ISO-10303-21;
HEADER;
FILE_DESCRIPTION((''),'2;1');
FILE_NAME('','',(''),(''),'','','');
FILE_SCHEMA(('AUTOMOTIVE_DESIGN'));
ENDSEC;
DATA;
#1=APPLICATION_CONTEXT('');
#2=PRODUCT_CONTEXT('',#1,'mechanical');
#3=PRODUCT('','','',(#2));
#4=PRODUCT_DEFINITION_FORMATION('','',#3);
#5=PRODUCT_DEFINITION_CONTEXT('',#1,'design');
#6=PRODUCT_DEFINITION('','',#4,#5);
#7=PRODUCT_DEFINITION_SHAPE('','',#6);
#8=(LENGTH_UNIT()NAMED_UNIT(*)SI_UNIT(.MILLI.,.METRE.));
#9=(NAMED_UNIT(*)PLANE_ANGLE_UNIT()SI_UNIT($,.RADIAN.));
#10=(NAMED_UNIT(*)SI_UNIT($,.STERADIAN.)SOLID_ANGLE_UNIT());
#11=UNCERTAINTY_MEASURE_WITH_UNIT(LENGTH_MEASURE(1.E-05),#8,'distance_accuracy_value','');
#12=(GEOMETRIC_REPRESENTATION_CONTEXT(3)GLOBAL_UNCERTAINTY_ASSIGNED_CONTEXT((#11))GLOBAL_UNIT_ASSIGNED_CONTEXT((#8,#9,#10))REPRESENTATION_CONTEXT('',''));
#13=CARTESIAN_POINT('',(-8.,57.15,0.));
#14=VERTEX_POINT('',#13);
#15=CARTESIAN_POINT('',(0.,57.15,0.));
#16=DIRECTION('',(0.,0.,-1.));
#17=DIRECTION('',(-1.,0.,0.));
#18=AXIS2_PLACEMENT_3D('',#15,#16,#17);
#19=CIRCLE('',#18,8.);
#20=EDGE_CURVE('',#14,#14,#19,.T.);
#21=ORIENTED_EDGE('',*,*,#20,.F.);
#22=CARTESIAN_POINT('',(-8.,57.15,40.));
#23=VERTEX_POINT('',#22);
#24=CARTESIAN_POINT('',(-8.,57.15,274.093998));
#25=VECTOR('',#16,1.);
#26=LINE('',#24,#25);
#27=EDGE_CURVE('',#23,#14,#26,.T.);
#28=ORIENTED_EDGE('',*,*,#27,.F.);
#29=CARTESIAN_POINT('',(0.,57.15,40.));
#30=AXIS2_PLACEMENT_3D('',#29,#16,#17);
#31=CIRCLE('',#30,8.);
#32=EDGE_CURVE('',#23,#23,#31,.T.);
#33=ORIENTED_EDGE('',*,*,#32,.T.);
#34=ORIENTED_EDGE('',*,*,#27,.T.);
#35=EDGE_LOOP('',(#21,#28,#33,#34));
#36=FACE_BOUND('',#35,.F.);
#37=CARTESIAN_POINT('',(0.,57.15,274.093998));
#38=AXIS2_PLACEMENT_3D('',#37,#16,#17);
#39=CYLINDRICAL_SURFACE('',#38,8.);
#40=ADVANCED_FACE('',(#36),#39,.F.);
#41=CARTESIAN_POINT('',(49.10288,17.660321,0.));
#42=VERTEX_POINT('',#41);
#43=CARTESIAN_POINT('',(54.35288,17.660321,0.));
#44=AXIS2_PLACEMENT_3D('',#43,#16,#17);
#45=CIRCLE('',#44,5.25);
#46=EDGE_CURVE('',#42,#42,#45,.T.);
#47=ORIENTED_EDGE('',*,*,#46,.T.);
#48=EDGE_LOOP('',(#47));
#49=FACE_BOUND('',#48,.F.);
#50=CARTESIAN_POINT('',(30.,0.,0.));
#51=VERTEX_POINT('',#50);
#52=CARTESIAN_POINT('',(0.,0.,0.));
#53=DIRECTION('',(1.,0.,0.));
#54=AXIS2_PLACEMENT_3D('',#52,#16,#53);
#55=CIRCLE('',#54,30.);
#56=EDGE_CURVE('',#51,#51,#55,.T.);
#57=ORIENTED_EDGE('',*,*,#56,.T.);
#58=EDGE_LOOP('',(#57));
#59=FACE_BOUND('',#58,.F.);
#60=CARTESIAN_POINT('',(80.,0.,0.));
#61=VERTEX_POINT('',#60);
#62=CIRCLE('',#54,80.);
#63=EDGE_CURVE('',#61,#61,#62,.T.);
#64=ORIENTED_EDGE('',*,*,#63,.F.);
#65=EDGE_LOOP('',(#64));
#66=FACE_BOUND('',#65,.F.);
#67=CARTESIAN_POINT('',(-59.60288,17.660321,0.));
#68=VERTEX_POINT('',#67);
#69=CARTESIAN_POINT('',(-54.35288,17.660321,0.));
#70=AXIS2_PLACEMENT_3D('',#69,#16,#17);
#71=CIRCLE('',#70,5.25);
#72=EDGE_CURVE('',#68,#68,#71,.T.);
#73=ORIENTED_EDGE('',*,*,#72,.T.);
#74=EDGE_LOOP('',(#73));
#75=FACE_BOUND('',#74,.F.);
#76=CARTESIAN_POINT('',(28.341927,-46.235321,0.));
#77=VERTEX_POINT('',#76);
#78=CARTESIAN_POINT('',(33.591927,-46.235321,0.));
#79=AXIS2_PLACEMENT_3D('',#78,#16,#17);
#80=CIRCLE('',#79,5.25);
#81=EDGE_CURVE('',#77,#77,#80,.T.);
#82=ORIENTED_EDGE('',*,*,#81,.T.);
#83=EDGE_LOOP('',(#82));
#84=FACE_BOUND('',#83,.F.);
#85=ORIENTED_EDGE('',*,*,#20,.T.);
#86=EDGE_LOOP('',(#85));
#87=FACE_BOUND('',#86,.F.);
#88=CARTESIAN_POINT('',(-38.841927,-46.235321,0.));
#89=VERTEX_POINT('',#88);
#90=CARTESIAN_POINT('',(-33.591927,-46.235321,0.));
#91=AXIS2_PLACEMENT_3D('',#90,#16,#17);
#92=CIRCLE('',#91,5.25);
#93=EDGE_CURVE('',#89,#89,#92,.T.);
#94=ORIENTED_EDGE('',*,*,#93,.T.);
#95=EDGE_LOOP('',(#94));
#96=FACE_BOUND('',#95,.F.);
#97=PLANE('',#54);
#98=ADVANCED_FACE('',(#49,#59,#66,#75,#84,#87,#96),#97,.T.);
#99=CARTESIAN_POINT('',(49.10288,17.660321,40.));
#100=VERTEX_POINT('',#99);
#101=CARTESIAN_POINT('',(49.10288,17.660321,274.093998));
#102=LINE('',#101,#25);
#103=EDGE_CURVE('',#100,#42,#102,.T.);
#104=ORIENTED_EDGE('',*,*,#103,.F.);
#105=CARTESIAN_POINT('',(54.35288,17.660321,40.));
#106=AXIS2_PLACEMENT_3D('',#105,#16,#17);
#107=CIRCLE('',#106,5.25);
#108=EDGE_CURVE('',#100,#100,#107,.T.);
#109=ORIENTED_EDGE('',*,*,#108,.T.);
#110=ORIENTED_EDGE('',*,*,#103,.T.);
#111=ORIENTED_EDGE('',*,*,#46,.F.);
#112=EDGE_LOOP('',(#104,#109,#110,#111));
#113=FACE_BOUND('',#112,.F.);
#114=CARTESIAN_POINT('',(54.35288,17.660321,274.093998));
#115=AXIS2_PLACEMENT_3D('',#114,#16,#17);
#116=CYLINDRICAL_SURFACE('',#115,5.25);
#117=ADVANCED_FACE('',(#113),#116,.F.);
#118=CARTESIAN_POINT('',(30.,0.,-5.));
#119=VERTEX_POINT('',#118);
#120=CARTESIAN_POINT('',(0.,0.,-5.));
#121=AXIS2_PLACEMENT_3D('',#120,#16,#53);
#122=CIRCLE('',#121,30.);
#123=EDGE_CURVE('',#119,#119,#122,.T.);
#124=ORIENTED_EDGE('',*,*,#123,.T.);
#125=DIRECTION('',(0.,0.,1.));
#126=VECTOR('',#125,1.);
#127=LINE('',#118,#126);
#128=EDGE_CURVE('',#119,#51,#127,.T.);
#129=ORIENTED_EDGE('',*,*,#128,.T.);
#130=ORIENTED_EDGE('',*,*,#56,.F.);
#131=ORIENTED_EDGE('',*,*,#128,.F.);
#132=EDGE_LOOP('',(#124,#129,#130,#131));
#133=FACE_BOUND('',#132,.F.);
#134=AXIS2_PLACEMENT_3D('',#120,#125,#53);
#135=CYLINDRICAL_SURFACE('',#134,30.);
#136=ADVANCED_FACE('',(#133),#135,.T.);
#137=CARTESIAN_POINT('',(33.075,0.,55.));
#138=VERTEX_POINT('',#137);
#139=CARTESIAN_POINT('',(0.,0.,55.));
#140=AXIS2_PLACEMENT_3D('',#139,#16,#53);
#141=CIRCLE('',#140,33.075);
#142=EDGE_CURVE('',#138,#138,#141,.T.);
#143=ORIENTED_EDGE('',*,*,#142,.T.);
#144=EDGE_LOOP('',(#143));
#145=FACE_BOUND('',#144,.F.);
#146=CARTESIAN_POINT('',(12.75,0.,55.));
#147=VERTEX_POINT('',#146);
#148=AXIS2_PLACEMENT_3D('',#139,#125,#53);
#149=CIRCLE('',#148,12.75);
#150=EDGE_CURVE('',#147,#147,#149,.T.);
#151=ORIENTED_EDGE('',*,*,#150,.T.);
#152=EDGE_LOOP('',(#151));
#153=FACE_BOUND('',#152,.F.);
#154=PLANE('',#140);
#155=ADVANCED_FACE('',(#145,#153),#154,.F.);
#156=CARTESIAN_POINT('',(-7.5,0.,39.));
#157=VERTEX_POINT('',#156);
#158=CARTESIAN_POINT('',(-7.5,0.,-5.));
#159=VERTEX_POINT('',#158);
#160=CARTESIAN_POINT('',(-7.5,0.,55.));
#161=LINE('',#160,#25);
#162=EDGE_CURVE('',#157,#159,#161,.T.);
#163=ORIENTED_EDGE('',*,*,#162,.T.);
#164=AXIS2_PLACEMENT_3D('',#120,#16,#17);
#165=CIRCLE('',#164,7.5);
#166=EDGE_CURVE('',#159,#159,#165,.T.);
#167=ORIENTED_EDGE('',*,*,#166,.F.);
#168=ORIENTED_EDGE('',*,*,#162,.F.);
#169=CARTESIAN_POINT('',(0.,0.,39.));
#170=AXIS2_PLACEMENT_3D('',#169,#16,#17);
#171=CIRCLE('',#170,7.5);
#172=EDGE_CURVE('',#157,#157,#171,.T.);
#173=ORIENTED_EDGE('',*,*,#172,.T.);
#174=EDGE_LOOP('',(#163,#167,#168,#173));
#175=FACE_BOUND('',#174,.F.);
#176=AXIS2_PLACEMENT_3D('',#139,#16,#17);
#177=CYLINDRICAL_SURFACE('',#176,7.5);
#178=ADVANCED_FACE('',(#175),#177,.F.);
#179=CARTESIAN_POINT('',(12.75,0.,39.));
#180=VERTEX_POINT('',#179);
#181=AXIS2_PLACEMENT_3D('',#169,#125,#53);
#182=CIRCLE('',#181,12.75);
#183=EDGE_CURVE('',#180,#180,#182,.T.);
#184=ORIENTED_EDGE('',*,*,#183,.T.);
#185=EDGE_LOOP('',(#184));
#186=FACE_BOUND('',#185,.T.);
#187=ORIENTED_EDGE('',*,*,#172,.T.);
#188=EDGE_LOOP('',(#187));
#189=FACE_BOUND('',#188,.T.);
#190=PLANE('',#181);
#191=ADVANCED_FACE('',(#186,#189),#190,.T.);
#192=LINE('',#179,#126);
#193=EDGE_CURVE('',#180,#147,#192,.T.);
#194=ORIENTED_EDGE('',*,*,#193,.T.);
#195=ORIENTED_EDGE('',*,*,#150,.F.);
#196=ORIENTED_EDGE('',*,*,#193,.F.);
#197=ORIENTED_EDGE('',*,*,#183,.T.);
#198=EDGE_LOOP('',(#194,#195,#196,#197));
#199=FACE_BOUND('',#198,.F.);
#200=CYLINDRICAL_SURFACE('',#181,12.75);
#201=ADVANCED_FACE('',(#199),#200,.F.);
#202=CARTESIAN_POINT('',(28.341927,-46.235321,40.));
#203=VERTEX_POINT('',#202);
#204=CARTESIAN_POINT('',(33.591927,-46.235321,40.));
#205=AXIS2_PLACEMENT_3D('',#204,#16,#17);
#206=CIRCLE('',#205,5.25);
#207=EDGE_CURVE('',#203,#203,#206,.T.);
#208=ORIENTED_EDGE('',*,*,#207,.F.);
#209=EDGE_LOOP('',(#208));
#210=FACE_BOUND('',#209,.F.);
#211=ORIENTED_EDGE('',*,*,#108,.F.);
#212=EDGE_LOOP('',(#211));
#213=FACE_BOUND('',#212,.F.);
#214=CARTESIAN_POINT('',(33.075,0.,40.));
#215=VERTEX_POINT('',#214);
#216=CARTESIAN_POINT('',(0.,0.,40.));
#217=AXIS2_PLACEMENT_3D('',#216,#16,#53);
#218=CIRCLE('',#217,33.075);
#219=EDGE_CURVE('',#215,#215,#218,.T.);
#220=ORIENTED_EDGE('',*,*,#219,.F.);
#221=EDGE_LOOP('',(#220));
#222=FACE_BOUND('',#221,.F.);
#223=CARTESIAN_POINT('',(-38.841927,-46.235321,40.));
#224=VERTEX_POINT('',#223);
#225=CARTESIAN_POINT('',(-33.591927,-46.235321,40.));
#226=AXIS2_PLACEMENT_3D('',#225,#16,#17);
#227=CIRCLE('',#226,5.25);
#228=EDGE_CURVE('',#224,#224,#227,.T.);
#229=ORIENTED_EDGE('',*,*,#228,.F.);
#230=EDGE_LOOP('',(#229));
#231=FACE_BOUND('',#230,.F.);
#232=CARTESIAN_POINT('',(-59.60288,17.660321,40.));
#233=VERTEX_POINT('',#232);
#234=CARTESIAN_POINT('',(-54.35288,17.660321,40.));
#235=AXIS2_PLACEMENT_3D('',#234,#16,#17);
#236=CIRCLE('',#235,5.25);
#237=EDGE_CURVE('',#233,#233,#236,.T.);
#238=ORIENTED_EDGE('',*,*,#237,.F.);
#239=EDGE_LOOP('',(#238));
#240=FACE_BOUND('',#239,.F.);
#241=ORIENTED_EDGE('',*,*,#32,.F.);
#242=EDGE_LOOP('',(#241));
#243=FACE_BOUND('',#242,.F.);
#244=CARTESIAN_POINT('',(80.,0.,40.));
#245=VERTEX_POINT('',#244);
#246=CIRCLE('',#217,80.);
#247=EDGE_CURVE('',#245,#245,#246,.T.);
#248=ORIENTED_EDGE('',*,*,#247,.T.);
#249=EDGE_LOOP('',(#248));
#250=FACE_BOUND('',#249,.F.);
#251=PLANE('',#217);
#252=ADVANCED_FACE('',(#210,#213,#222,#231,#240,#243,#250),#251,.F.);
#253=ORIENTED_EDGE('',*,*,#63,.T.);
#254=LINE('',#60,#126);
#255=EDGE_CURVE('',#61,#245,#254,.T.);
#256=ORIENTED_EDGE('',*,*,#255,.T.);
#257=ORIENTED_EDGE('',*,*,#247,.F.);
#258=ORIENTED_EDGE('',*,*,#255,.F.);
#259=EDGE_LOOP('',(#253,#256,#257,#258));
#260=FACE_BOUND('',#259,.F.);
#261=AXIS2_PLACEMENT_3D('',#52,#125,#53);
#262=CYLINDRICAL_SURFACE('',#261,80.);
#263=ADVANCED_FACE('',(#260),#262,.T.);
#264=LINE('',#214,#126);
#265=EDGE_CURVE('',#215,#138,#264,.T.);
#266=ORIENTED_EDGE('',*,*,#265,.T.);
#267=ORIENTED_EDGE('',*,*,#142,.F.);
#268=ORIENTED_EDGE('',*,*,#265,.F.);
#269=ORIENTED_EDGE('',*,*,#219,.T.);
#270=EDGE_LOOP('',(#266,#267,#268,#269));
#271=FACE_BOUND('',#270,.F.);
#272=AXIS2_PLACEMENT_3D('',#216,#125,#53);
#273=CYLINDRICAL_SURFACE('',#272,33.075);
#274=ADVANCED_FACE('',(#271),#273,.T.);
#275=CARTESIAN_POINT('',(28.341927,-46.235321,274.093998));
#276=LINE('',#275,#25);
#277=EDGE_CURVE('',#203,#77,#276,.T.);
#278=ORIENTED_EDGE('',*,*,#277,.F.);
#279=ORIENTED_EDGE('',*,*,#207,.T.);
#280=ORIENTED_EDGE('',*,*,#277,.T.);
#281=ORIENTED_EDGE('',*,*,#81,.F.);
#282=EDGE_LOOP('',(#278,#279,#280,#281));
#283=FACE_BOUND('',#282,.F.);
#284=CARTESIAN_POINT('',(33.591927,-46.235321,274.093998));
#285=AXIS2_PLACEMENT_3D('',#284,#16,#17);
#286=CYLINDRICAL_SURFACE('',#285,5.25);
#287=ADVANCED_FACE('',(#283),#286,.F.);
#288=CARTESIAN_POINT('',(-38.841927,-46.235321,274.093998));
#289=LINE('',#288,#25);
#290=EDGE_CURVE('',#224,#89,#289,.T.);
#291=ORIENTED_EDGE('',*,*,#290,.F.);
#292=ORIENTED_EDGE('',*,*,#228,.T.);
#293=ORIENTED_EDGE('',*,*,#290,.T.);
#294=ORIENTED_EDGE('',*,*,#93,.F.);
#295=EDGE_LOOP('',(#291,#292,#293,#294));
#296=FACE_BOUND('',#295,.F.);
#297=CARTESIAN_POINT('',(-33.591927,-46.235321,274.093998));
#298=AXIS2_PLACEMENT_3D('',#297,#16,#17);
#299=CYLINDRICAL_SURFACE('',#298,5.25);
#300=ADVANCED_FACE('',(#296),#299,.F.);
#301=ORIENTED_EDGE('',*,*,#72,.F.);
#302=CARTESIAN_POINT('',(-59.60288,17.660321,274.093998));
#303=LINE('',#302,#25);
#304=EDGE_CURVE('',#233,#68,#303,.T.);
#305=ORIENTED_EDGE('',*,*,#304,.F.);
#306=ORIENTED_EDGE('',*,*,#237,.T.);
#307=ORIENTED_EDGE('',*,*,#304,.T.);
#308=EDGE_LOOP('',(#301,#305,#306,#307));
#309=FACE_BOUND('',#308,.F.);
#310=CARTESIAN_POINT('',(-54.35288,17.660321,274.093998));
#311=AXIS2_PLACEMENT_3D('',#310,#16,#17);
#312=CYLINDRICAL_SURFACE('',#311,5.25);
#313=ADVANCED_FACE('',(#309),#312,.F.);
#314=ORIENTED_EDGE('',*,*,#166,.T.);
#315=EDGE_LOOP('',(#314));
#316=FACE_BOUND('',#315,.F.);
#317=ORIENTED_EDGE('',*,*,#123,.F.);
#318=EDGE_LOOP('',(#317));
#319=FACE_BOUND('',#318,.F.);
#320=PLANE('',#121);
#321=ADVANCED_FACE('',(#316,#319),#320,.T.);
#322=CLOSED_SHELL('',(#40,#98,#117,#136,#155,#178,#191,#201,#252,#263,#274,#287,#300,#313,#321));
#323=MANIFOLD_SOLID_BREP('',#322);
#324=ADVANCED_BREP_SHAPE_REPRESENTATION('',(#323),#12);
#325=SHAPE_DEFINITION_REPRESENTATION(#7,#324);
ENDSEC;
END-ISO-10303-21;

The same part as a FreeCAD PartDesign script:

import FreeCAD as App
import Part
import Sketcher
Q = App.Units.Quantity

doc = App.newDocument("Part")
params = doc.addObject("Spreadsheet::Sheet", "Params")
for row, (alias, value) in enumerate([
    ("sketch1_width", "50 mm"),
    ("sketch1_width2", "30 mm"),
    ("sketch1_height", "5 mm"),
    ("sketch1_height2", "40 mm"),
    ("sketch1_height3", "15 mm"),
    ("revolution_angle", "360 deg"),
    ("sketch2_diameter", "15 mm"),
    ("hole_diameter", "15 mm"),
    ("hole_cbore_diameter", "25.5 mm"),
    ("hole_cbore_depth", "16 mm"),
    ("sketch3_diameter", "10.5 mm"),
    ("hole2_diameter", "10.5 mm"),
    ("sketch4_diameter", "16 mm"),
    ("hole3_diameter", "16 mm"),
], start=1):
    params.set(f"A{row}", alias)
    params.set(f"B{row}", "=" + value)
    params.setAlias(f"B{row}", alias)

body = doc.addObject("PartDesign::Body", "Body")

sketch1 = doc.addObject("Sketcher::SketchObject", "Sketch")
body.addObject(sketch1)
sketch1.AttachmentSupport = (doc.XZ_Plane, [""])
sketch1.MapMode = "FlatFace"
sketch1.addGeometry([
    Part.LineSegment(App.Vector(30, -5, 0), App.Vector(30, 0, 0)),
    Part.LineSegment(App.Vector(30, 0, 0), App.Vector(80, 0, 0)),
    Part.LineSegment(App.Vector(80, 0, 0), App.Vector(80, 40, 0)),
    Part.LineSegment(App.Vector(80, 40, 0), App.Vector(33, 40, 0)),
    Part.LineSegment(App.Vector(33, 40, 0), App.Vector(33, 55, 0)),
    Part.LineSegment(App.Vector(33, 55, 0), App.Vector(0, 55, 0)),
    Part.LineSegment(App.Vector(0, 55, 0), App.Vector(0, -5, 0)),
    Part.LineSegment(App.Vector(0, -5, 0), App.Vector(30, -5, 0)),
], False)
sketch1.addConstraint([
    Sketcher.Constraint("Coincident", 0, 2, 1, 1),
    Sketcher.Constraint("Coincident", 1, 2, 2, 1),
    Sketcher.Constraint("Coincident", 2, 2, 3, 1),
    Sketcher.Constraint("Coincident", 3, 2, 4, 1),
    Sketcher.Constraint("Coincident", 4, 2, 5, 1),
    Sketcher.Constraint("Coincident", 5, 2, 6, 1),
    Sketcher.Constraint("Coincident", 6, 2, 7, 1),
    Sketcher.Constraint("Coincident", 7, 2, 0, 1),
    Sketcher.Constraint("Vertical", 0),
    Sketcher.Constraint("Horizontal", 1),
    Sketcher.Constraint("Vertical", 2),
    Sketcher.Constraint("Horizontal", 3),
    Sketcher.Constraint("Vertical", 4),
    Sketcher.Constraint("Horizontal", 5),
    Sketcher.Constraint("Vertical", 6),
    Sketcher.Constraint("Horizontal", 7),
    Sketcher.Constraint("PointOnObject", 0, 2, -1),
    Sketcher.Constraint("PointOnObject", 5, 2, -2),
    Sketcher.Constraint("DistanceX", 1, 1, 1, 2, Q("50 mm")),
    Sketcher.Constraint("DistanceX", 7, 1, 7, 2, Q("30 mm")),
    Sketcher.Constraint("DistanceY", 0, 1, 0, 2, Q("5 mm")),
    Sketcher.Constraint("DistanceY", 2, 1, 2, 2, Q("40 mm")),
    Sketcher.Constraint("DistanceY", 4, 1, 4, 2, Q("15 mm")),
    Sketcher.Constraint("DistanceX", 3, 2, 3, 1, Q("46.925 mm")),
])
sketch1.setExpression("Constraints[18]", "Params.sketch1_width")
sketch1.setExpression("Constraints[19]", "Params.sketch1_width2")
sketch1.setExpression("Constraints[20]", "Params.sketch1_height")
sketch1.setExpression("Constraints[21]", "Params.sketch1_height2")
sketch1.setExpression("Constraints[22]", "Params.sketch1_height3")
revolution = doc.addObject("PartDesign::Revolution", "Revolution")
body.addObject(revolution)
revolution.Profile = sketch1
revolution.ReferenceAxis = (sketch1, ["V_Axis"])
revolution.setExpression("Angle", "Params.revolution_angle")

sketch2 = doc.addObject("Sketcher::SketchObject", "Sketch001")
body.addObject(sketch2)
sketch2.AttachmentSupport = (doc.XY_Plane, [""])
sketch2.MapMode = "FlatFace"
sketch2.AttachmentOffset = App.Placement(App.Vector(0, 0, 55), App.Rotation())
sketch2.addGeometry(Part.Circle(App.Vector(0, 0, 0), App.Vector(0, 0, 1), 8), False)
sketch2.addConstraint([
    Sketcher.Constraint("Coincident", 0, 3, -1, 1),
    Sketcher.Constraint("Diameter", 0, Q("15 mm")),
])
sketch2.setExpression("Constraints[1]", "Params.sketch2_diameter")
doc.recompute()
hole = doc.addObject("PartDesign::Hole", "Hole")
body.addObject(hole)
hole.Profile = sketch2
hole.ThreadType = "None"
hole.setExpression("Diameter", "Params.hole_diameter")
hole.DepthType = "ThroughAll"
hole.HoleCutType = "Counterbore"
hole.setExpression("HoleCutDiameter", "Params.hole_cbore_diameter")
hole.setExpression("HoleCutDepth", "Params.hole_cbore_depth")

sketch3 = doc.addObject("Sketcher::SketchObject", "Sketch002")
body.addObject(sketch3)
sketch3.AttachmentSupport = (doc.XY_Plane, [""])
sketch3.MapMode = "FlatFace"
sketch3.AttachmentOffset = App.Placement(App.Vector(0, 0, 40), App.Rotation())
sketch3.addGeometry([
    Part.Circle(App.Vector(-54, 18, 0), App.Vector(0, 0, 1), 5),
    Part.Circle(App.Vector(-34, -46, 0), App.Vector(0, 0, 1), 5),
    Part.Circle(App.Vector(34, -46, 0), App.Vector(0, 0, 1), 5),
    Part.Circle(App.Vector(54, 18, 0), App.Vector(0, 0, 1), 5),
], False)
sketch3.addConstraint([
    Sketcher.Constraint("Equal", 0, 1),
    Sketcher.Constraint("Equal", 1, 2),
    Sketcher.Constraint("Equal", 2, 3),
    Sketcher.Constraint("Symmetric", 1, 3, 2, 3, -2),
    Sketcher.Constraint("Symmetric", 0, 3, 3, 3, -2),
    Sketcher.Constraint("Diameter", 0, Q("10.5 mm")),
    Sketcher.Constraint("DistanceX", 0, 3, -1, 1, Q("54.35288 mm")),
    Sketcher.Constraint("DistanceY", -1, 1, 0, 3, Q("17.660321 mm")),
    Sketcher.Constraint("DistanceY", 1, 3, -1, 1, Q("46.235321 mm")),
    Sketcher.Constraint("DistanceX", 1, 3, -1, 1, Q("33.591927 mm")),
])
sketch3.setExpression("Constraints[5]", "Params.sketch3_diameter")
doc.recompute()
hole2 = doc.addObject("PartDesign::Hole", "Hole001")
body.addObject(hole2)
hole2.Profile = sketch3
hole2.ThreadType = "None"
hole2.setExpression("Diameter", "Params.hole2_diameter")
hole2.DepthType = "ThroughAll"

sketch4 = doc.addObject("Sketcher::SketchObject", "Sketch003")
body.addObject(sketch4)
sketch4.AttachmentSupport = (doc.XY_Plane, [""])
sketch4.MapMode = "FlatFace"
sketch4.AttachmentOffset = App.Placement(App.Vector(0, 0, 40), App.Rotation())
sketch4.addGeometry(Part.Circle(App.Vector(0, 57, 0), App.Vector(0, 0, 1), 8), False)
sketch4.addConstraint([
    Sketcher.Constraint("PointOnObject", 0, 3, -2),
    Sketcher.Constraint("Diameter", 0, Q("16 mm")),
    Sketcher.Constraint("DistanceY", -1, 1, 0, 3, Q("57.15 mm")),
])
sketch4.setExpression("Constraints[1]", "Params.sketch4_diameter")
doc.recompute()
hole3 = doc.addObject("PartDesign::Hole", "Hole002")
body.addObject(hole3)
hole3.Profile = sketch4
hole3.ThreadType = "None"
hole3.setExpression("Diameter", "Params.hole3_diameter")
hole3.DepthType = "ThroughAll"

doc.recompute()
